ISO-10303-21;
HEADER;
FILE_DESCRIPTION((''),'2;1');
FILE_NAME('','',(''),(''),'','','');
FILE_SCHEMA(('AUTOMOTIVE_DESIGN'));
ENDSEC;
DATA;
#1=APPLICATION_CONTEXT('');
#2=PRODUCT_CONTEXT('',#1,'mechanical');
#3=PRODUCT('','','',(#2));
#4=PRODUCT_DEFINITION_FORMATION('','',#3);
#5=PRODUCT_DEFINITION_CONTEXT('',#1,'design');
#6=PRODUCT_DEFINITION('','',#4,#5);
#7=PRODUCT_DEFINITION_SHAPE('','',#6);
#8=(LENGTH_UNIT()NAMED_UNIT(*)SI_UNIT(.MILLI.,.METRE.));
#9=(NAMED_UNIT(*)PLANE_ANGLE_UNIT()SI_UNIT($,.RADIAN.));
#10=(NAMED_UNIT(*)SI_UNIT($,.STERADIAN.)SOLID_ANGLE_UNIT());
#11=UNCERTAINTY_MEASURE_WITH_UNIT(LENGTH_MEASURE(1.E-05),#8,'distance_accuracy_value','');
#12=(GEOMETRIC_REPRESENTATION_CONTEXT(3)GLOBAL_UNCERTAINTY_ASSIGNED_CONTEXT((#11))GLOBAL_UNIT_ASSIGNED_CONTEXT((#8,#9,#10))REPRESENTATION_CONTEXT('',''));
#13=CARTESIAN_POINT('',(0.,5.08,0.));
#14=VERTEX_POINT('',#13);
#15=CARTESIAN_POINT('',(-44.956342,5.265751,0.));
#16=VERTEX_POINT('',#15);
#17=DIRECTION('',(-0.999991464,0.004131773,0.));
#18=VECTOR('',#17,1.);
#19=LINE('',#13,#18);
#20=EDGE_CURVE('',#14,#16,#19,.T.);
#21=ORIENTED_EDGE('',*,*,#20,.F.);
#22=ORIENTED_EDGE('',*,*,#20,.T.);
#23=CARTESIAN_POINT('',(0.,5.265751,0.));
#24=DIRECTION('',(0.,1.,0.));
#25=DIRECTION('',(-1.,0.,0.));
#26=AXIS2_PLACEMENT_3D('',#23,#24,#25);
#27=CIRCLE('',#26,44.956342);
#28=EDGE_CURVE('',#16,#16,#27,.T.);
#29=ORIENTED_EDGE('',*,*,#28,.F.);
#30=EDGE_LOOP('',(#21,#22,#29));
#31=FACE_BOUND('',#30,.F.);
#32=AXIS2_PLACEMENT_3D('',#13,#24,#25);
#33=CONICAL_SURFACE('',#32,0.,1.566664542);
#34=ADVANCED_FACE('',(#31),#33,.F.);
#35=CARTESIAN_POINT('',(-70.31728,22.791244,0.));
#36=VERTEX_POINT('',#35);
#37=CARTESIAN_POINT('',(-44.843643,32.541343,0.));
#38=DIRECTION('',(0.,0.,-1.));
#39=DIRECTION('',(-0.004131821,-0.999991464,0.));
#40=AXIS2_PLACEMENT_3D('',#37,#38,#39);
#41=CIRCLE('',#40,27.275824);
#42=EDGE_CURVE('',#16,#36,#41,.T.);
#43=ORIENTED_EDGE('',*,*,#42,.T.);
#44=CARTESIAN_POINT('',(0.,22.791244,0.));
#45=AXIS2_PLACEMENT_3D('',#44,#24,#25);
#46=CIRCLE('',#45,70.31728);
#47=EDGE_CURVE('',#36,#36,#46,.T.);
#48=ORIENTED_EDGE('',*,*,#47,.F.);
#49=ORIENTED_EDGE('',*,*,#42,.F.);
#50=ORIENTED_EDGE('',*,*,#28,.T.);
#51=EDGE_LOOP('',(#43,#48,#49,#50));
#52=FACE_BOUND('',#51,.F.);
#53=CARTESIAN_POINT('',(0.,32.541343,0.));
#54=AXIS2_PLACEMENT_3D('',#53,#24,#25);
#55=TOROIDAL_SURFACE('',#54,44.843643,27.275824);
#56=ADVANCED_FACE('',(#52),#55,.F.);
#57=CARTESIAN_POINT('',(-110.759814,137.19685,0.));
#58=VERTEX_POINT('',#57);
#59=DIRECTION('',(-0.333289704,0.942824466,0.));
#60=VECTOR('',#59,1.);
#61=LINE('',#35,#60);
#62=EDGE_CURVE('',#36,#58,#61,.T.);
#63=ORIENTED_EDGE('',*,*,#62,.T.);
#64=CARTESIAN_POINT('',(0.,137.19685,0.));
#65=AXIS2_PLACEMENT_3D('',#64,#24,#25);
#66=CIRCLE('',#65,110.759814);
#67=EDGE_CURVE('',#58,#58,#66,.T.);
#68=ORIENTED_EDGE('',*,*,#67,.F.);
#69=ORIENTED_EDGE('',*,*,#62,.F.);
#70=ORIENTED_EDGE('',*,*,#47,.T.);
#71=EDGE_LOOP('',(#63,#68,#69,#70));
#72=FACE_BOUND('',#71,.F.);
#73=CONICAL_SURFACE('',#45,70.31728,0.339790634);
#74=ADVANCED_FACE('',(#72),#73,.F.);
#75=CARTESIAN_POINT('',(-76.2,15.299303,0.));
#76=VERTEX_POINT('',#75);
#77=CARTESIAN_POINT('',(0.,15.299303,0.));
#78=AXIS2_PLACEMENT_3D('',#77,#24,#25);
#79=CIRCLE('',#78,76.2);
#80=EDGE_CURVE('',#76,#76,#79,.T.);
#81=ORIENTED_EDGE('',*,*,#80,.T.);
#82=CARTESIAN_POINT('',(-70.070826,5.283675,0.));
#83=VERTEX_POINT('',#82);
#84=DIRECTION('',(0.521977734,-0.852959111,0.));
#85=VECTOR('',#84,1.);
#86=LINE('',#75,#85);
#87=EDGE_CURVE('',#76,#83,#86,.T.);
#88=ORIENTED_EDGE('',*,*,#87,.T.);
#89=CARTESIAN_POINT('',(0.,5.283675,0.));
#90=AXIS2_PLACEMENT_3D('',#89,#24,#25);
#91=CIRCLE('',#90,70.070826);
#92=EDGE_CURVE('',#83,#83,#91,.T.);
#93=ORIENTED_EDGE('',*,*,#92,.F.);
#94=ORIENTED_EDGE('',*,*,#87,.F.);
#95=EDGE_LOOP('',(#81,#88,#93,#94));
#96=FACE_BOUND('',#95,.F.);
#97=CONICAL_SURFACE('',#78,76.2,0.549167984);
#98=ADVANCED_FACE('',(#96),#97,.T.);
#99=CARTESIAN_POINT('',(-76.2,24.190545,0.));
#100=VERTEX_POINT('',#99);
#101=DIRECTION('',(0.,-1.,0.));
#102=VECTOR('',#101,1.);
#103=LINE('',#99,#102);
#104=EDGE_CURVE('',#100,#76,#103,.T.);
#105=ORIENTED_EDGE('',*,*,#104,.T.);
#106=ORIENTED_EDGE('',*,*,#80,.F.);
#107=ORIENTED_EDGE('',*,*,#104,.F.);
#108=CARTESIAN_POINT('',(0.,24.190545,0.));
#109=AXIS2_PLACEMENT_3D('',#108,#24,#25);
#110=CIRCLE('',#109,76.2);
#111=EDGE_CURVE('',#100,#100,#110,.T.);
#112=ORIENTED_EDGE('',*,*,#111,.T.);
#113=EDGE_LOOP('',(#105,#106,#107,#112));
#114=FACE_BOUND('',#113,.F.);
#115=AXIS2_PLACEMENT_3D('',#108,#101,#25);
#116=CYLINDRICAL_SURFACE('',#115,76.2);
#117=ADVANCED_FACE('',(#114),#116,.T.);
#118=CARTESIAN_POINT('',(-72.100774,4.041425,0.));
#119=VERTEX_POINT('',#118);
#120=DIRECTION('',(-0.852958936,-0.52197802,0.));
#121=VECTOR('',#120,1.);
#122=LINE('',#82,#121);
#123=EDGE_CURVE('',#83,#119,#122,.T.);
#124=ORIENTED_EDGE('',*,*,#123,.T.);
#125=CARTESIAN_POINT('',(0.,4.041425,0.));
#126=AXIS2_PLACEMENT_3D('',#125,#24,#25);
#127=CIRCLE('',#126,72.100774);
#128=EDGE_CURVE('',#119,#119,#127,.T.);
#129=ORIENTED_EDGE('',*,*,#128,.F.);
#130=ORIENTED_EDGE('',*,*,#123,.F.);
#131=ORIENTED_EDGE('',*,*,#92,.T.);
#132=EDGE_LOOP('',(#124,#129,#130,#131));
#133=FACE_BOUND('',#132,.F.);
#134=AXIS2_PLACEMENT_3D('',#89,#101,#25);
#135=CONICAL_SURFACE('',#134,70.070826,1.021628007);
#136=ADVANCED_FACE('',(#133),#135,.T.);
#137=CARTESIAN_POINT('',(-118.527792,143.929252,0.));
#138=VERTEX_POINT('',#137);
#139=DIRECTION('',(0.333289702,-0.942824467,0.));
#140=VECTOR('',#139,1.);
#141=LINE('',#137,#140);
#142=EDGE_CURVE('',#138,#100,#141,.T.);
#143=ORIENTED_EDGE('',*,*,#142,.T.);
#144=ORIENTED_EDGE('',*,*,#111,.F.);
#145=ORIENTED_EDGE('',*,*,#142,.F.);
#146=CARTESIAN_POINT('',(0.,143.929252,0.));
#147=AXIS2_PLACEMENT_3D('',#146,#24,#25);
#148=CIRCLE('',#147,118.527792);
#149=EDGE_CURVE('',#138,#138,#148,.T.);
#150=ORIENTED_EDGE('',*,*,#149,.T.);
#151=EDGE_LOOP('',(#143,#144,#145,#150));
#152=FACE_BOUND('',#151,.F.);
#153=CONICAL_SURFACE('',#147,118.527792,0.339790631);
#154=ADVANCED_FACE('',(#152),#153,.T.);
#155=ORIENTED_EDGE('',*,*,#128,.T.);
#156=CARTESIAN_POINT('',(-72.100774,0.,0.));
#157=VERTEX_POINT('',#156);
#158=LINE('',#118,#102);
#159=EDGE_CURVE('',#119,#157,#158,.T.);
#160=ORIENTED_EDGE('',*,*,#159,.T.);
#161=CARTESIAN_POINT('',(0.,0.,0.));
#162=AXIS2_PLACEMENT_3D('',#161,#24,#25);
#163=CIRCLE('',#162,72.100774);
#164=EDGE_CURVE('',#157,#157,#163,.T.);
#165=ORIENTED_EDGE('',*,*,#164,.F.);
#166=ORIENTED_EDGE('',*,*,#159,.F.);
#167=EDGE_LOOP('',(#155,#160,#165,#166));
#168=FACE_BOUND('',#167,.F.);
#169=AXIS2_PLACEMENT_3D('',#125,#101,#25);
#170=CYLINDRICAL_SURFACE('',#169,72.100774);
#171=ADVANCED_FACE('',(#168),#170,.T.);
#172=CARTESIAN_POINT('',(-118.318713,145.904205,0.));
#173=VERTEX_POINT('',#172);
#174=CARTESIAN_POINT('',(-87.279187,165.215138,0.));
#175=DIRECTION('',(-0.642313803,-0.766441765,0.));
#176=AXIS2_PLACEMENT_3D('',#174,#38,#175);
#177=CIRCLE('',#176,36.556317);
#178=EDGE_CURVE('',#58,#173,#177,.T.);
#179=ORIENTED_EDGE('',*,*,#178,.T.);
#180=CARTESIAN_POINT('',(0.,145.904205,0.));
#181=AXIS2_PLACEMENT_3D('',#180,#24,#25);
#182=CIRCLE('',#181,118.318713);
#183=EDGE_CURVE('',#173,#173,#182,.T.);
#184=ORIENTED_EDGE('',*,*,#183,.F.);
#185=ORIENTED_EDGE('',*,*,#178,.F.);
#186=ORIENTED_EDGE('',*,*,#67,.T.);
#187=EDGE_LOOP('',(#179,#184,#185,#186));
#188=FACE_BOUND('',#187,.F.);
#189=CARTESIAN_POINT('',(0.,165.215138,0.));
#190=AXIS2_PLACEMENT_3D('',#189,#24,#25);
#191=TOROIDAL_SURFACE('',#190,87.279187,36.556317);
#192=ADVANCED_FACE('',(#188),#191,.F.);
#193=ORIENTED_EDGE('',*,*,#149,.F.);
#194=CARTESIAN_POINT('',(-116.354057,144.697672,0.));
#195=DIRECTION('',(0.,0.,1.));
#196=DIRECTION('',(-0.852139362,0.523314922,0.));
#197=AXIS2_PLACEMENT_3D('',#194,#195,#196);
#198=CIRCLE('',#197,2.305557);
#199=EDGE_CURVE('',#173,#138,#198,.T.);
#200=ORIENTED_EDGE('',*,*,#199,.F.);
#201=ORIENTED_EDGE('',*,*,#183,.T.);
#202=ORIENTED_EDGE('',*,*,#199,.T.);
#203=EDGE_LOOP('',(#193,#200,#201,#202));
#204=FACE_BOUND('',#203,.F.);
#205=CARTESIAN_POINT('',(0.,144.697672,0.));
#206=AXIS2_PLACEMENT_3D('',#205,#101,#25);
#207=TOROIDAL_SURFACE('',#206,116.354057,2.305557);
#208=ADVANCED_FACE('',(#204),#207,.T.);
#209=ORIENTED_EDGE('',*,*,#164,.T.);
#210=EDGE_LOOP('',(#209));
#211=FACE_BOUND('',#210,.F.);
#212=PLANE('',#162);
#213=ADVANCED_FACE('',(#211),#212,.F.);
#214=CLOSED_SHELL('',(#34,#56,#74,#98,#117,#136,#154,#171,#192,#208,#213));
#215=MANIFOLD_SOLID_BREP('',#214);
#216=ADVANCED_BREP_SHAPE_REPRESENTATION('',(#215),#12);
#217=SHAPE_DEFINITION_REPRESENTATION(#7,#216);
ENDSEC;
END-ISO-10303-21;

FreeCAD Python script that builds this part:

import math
import FreeCAD as App
import Part
import Sketcher
Q = App.Units.Quantity

doc = App.newDocument("Part")
body = doc.addObject("PartDesign::Body", "Body")

# Sketch on XY plane
sketch1 = doc.addObject("Sketcher::SketchObject", "Sketch")
body.addObject(sketch1)
sketch1.AttachmentSupport = (doc.XY_Plane, [""])
sketch1.MapMode = "FlatFace"
sketch1.addGeometry([
    Part.LineSegment(App.Vector(-118.5, 143.9, 0), App.Vector(-76.2, 24.2, 0)),  # 0
    Part.LineSegment(App.Vector(-76.2, 24.2, 0), App.Vector(-76.2, 15.3, 0)),  # 1
    Part.LineSegment(App.Vector(-76.2, 15.3, 0), App.Vector(-70.1, 5.3, 0)),  # 2
    Part.LineSegment(App.Vector(-70.1, 5.3, 0), App.Vector(-72.1, 4, 0)),  # 3
    Part.LineSegment(App.Vector(-72.1, 4, 0), App.Vector(-72.1, 0, 0)),  # 4
    Part.LineSegment(App.Vector(-72.1, 0, 0), App.Vector(0, 0, 0)),  # 5
    Part.LineSegment(App.Vector(0, 0, 0), App.Vector(0, 5.1, 0)),  # 6
    Part.LineSegment(App.Vector(0, 5.1, 0), App.Vector(-45, 5.3, 0)),  # 7
    Part.ArcOfCircle(Part.Circle(App.Vector(-44.8, 32.5, 0), App.Vector(0, 0, 1), 27.3), math.radians(-159), math.radians(-90)),  # 8
    Part.LineSegment(App.Vector(-70.3, 22.8, 0), App.Vector(-110.8, 137.2, 0)),  # 9
    Part.ArcOfCircle(Part.Circle(App.Vector(-87.3, 165.2, 0), App.Vector(0, 0, 1), 36.6), math.radians(-148.11), math.radians(-129.96)),  # 10
    Part.ArcOfCircle(Part.Circle(App.Vector(-116.4, 144.7, 0), App.Vector(0, 0, 1), 2.3), math.radians(148), math.radians(199)),  # 11
], False)
sketch1.addConstraint([
    Sketcher.Constraint("Coincident", 0, 2, 1, 1),
    Sketcher.Constraint("Coincident", 1, 2, 2, 1),
    Sketcher.Constraint("Coincident", 2, 2, 3, 1),
    Sketcher.Constraint("Coincident", 3, 2, 4, 1),
    Sketcher.Constraint("Coincident", 4, 2, 5, 1),
    Sketcher.Constraint("Coincident", 5, 2, 6, 1),
    Sketcher.Constraint("Coincident", 6, 2, 7, 1),
    Sketcher.Constraint("Tangent", 7, 2, 8, 2),
    Sketcher.Constraint("Coincident", 8, 1, 9, 1),
    Sketcher.Constraint("Coincident", 9, 2, 10, 2),
    Sketcher.Constraint("Coincident", 10, 1, 11, 1),
    Sketcher.Constraint("Tangent", 11, 2, 0, 1),
    Sketcher.Constraint("Vertical", 1),
    Sketcher.Constraint("Vertical", 4),
    Sketcher.Constraint("Horizontal", 5),
    Sketcher.Constraint("Vertical", 6),
    Sketcher.Constraint("Coincident", 5, 2, -1, 1),
    Sketcher.Constraint("Perpendicular", 2, 3),
    Sketcher.Constraint("Parallel", 0, 9),
    Sketcher.Constraint("Distance", 0, Q("5 in")),
    Sketcher.Constraint("DistanceY", 6, 1, 6, 2, Q("0.2 in")),
    Sketcher.Constraint("DistanceX", 0, 2, -1, 1, Q("3 in")),
    Sketcher.Constraint("Radius", 8, 27.275824),
    Sketcher.Constraint("Radius", 10, 36.556317),
    Sketcher.Constraint("Radius", 11, 2.305557),
    Sketcher.Constraint("DistanceX", 7, 2, 8, 3, 0.112699),
    Sketcher.Constraint("DistanceY", 8, 1, 0, 2, 1.399301),
    Sketcher.Constraint("DistanceX", 10, 1, 9, 2, 7.558899),
    Sketcher.Constraint("DistanceY", 9, 2, 11, 2, 6.732402),
    Sketcher.Constraint("Distance", 3, 2.379889),
    Sketcher.Constraint("DistanceX", 5, 1, 5, 2, 72.100774),
    Sketcher.Constraint("DistanceY", 1, 2, 1, 1, 8.891242),
    Sketcher.Constraint("DistanceY", 4, 2, 4, 1, 4.041425),
    Sketcher.Constraint("DistanceX", 8, 1, -1, 1, 70.31728),
    Sketcher.Constraint("DistanceY", -1, 1, 9, 2, 137.19685),
    Sketcher.Constraint("DistanceX", 11, 3, 10, 3, 29.07487),
])
revolution = doc.addObject("PartDesign::Revolution", "Revolution")
body.addObject(revolution)
revolution.Profile = sketch1
revolution.ReferenceAxis = (sketch1, ["V_Axis"])
revolution.Angle = 360

doc.recompute()
